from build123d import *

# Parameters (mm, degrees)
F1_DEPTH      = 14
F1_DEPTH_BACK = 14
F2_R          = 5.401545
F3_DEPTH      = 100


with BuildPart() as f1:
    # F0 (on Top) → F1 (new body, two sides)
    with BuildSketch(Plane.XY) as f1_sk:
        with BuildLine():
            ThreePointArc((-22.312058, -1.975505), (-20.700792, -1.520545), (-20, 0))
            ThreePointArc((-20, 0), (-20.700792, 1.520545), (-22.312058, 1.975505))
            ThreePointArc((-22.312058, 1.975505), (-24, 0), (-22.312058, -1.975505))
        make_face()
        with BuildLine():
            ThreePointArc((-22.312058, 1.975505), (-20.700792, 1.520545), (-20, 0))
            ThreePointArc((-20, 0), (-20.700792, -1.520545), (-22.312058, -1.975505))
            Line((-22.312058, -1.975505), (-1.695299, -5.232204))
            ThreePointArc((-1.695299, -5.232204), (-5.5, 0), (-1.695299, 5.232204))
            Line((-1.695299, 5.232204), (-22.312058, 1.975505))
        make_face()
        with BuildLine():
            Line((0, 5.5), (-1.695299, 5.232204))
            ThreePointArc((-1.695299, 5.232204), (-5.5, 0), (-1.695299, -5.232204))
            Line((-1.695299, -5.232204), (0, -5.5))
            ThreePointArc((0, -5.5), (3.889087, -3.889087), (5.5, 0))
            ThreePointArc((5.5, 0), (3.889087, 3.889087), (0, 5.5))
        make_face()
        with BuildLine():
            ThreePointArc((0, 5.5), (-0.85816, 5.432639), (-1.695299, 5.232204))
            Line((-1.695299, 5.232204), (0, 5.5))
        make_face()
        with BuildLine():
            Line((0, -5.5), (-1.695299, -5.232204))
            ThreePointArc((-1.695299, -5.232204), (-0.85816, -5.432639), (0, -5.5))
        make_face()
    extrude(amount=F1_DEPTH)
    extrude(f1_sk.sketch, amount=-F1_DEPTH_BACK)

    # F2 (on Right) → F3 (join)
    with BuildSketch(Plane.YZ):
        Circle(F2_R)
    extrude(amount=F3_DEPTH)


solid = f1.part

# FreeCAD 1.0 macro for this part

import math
import FreeCAD as App
import Part
import Sketcher
from FreeCAD import Vector

doc = App.newDocument("Part")
body = doc.addObject("PartDesign::Body", "Body")

# Sketch on XY plane
sketch1 = doc.addObject("Sketcher::SketchObject", "Sketch")
body.addObject(sketch1)
sketch1.AttachmentSupport = (doc.XY_Plane, [""])
sketch1.MapMode = "FlatFace"
sketch1.addGeometry([
    Part.ArcOfCircle(Part.Circle(Vector(-22, 0, 0), Vector(0, 0, 1), 2), math.radians(98.976481), math.radians(261.023519)),  # 0
    Part.LineSegment(Vector(-22.312058, -1.975505, 0), Vector(-1.695299, -5.232204, 0)),  # 1
    Part.ArcOfCircle(Part.Circle(Vector(-0.000007, -0.000047, 0), Vector(0, 0, 1), 5.499953), math.radians(-107.953052), math.radians(-89.999931)),  # 2
    Part.ArcOfCircle(Part.Circle(Vector(-0.000001, 0.000001, 0), Vector(0, 0, 1), 5.500001), math.radians(-89.999989), math.radians(-0.000011)),  # 3
    Part.ArcOfCircle(Part.Circle(Vector(-0.000001, -0.000001, 0), Vector(0, 0, 1), 5.500001), math.radians(0.000011), math.radians(89.999989)),  # 4
    Part.ArcOfCircle(Part.Circle(Vector(-0.000007, 0.000047, 0), Vector(0, 0, 1), 5.499953), math.radians(89.999931), math.radians(107.953052)),  # 5
    Part.LineSegment(Vector(-1.695299, 5.232204, 0), Vector(-22.312058, 1.975505, 0)),  # 6
], False)
sketch1.addConstraint([
    Sketcher.Constraint("Tangent", 0, 2, 1, 1),
    Sketcher.Constraint("Coincident", 1, 2, 2, 1),
    Sketcher.Constraint("Tangent", 2, 2, 3, 1),
    Sketcher.Constraint("Tangent", 3, 2, 4, 1),
    Sketcher.Constraint("Tangent", 4, 2, 5, 1),
    Sketcher.Constraint("Coincident", 5, 2, 6, 1),
    Sketcher.Constraint("Tangent", 6, 2, 0, 1),
    Sketcher.Constraint("Coincident", 3, 3, -1, 1),
    Sketcher.Constraint("Equal", 3, 4),
    Sketcher.Constraint("Equal", 2, 5),
    Sketcher.Constraint("Symmetric", 0, 2, 6, 2, -1),
    Sketcher.Constraint("PointOnObject", 2, 2, -2),
    Sketcher.Constraint("PointOnObject", 3, 2, -1),
    Sketcher.Constraint("PointOnObject", 4, 2, -2),
    Sketcher.Constraint("Radius", 0, 2.0),
    Sketcher.Constraint("Radius", 3, 5.500001),
    Sketcher.Constraint("DistanceX", 0, 3, -1, 1, 22.0),
    Sketcher.Constraint("Radius", 2, 5.499953),
    Sketcher.Constraint("DistanceX", 1, 2, -1, 1, 1.695299),
])
pad1 = doc.addObject("PartDesign::Pad", "Pad")
body.addObject(pad1)
pad1.Profile = sketch1
pad1.Type = "TwoLengths"
pad1.Length = 14
pad1.Length2 = 14

# Sketch on YZ plane
sketch2 = doc.addObject("Sketcher::SketchObject", "Sketch001")
body.addObject(sketch2)
sketch2.AttachmentSupport = (doc.YZ_Plane, [""])
sketch2.MapMode = "FlatFace"
sketch2.addGeometry(Part.Circle(Vector(0, 0, 0), Vector(0, 0, 1), 5.401545), False)
sketch2.addConstraint([
    Sketcher.Constraint("Coincident", 0, 3, -1, 1),
    Sketcher.Constraint("Diameter", 0, 10.80309),
])
pad2 = doc.addObject("PartDesign::Pad", "Pad001")
body.addObject(pad2)
pad2.Profile = sketch2
pad2.Length = 100

doc.recompute()
